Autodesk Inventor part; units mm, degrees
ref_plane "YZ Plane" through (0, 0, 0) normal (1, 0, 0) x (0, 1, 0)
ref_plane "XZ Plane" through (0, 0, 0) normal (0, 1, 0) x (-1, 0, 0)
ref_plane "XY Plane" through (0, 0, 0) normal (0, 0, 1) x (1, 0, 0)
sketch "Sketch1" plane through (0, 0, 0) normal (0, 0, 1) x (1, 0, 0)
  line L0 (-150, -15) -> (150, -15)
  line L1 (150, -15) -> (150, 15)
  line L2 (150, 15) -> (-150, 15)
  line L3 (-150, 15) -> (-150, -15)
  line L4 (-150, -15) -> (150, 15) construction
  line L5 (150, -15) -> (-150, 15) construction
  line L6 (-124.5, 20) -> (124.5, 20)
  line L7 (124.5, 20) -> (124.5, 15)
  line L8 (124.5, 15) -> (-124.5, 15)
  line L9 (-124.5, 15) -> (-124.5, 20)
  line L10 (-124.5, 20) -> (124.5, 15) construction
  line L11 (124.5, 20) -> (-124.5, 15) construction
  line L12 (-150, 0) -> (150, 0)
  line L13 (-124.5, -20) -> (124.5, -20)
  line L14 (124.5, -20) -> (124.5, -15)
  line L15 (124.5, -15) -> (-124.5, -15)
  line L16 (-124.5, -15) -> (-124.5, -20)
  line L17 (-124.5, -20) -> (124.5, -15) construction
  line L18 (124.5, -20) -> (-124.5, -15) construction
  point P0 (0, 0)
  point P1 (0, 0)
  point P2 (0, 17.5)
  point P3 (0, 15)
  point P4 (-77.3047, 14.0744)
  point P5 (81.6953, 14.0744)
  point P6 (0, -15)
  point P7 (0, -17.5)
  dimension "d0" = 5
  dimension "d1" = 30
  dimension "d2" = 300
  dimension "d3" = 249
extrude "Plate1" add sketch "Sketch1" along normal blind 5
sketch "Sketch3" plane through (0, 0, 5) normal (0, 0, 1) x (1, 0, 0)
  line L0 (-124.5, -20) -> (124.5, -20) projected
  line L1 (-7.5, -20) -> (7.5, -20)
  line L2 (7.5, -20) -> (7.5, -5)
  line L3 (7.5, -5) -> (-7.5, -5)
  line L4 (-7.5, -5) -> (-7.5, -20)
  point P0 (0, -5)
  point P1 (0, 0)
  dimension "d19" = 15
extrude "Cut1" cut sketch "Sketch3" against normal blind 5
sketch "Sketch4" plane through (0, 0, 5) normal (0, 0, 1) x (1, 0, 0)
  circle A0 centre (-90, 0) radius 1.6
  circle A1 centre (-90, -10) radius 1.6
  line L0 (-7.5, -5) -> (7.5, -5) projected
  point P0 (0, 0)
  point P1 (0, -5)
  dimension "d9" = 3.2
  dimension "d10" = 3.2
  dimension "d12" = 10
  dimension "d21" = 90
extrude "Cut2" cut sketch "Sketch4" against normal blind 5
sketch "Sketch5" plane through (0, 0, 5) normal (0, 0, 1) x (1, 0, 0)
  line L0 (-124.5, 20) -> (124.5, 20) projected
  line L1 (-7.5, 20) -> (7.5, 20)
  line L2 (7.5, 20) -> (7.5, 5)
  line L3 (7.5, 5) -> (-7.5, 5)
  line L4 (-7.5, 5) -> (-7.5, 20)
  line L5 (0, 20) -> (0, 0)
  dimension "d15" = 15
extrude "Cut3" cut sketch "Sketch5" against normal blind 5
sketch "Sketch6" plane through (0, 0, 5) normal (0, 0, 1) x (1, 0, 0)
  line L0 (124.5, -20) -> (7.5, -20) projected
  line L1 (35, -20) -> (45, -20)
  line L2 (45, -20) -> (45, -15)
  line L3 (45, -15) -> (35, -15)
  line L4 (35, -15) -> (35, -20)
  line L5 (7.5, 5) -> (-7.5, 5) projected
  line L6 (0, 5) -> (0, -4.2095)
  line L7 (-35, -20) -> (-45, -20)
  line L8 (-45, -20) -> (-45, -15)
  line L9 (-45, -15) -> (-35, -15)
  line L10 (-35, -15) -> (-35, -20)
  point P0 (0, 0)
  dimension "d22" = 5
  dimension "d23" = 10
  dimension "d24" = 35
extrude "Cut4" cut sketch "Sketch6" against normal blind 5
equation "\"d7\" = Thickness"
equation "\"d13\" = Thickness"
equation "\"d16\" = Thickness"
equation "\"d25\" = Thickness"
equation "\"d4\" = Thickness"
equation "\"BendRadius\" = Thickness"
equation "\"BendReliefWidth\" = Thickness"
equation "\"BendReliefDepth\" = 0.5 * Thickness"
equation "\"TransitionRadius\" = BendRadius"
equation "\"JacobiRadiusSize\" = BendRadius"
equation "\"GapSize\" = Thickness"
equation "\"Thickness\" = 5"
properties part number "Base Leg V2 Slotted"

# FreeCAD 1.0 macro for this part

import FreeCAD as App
import Part
import Sketcher
from FreeCAD import Vector
Q = App.Units.Quantity


def add_polygon(sketch, points):
    """Adds a closed chain of lines whose ends are joined by coincident constraints."""
    first, n = sketch.GeometryCount, len(points)
    for a, b in zip(points, points[1:] + points[:1]):
        sketch.addGeometry(Part.LineSegment(App.Vector(*a, 0), App.Vector(*b, 0)), False)
    for i in range(n):
        sketch.addConstraint(Sketcher.Constraint("Coincident", first + i, 2, first + (i + 1) % n, 1))

doc = App.newDocument("Part")
body = doc.addObject("PartDesign::Body", "Body")

# Sketch on XY plane
sketch1 = body.newObject("Sketcher::SketchObject", "Sketch")
sketch1.AttachmentSupport = (doc.getObject("XY_Plane"), [""])
sketch1.MapMode = "FlatFace"
add_polygon(sketch1, [(-150, -15), (-124, -15), (-124, -20), (124, -20), (124, -15), (150, -15), (150, 15), (124, 15), (124, 20), (-124, 20), (-124, 15), (-150, 15)])  # lines 0-11
sketch1.addConstraint(Sketcher.Constraint("Horizontal", 0))
sketch1.addConstraint(Sketcher.Constraint("Vertical", 1))
sketch1.addConstraint(Sketcher.Constraint("Horizontal", 2))
sketch1.addConstraint(Sketcher.Constraint("Vertical", 3))
sketch1.addConstraint(Sketcher.Constraint("Horizontal", 4))
sketch1.addConstraint(Sketcher.Constraint("Vertical", 5))
sketch1.addConstraint(Sketcher.Constraint("Horizontal", 6))
sketch1.addConstraint(Sketcher.Constraint("Vertical", 7))
sketch1.addConstraint(Sketcher.Constraint("Horizontal", 8))
sketch1.addConstraint(Sketcher.Constraint("Vertical", 9))
sketch1.addConstraint(Sketcher.Constraint("Horizontal", 10))
sketch1.addConstraint(Sketcher.Constraint("Vertical", 11))
sketch1.addConstraint(Sketcher.Constraint("Symmetric", 0, 2, 6, 2, -1, 1))
sketch1.addConstraint(Sketcher.Constraint("Symmetric", 2, 2, 8, 2, -1, 1))
sketch1.addConstraint(Sketcher.Constraint("Symmetric", 4, 2, 10, 2, -1, 1))
sketch1.addConstraint(Sketcher.Constraint("Symmetric", 0, 2, 3, 2, -2))
sketch1.addConstraint(Sketcher.Constraint("DistanceX", 2, 1, 2, 2, Q("249 mm")))
sketch1.addConstraint(Sketcher.Constraint("DistanceY", 1, 2, 1, 1, Q("5 mm")))
sketch1.addConstraint(Sketcher.Constraint("DistanceY", 5, 1, 5, 2, Q("30 mm")))
sketch1.addConstraint(Sketcher.Constraint("DistanceX", 0, 1, 0, 2, Q("25.5 mm")))
pad1 = body.newObject("PartDesign::Pad", "Pad")
pad1.Profile = sketch1
pad1.Length = 5

# Sketch on XY plane
sketch2 = body.newObject("Sketcher::SketchObject", "Sketch001")
sketch2.AttachmentSupport = (doc.getObject("XY_Plane"), [""])
sketch2.MapMode = "FlatFace"
sketch2.AttachmentOffset = App.Placement(Vector(0, 0, 5), App.Rotation())
add_polygon(sketch2, [(-8, -5), (-8, -20), (8, -20), (8, -5)])  # lines 0-3
sketch2.addConstraint(Sketcher.Constraint("Vertical", 0))
sketch2.addConstraint(Sketcher.Constraint("Horizontal", 1))
sketch2.addConstraint(Sketcher.Constraint("Vertical", 2))
sketch2.addConstraint(Sketcher.Constraint("Horizontal", 3))
sketch2.addConstraint(Sketcher.Constraint("Equal", 3, 0))
sketch2.addConstraint(Sketcher.Constraint("DistanceX", 1, 1, 1, 2, Q("15 mm")))
sketch2.addConstraint(Sketcher.Constraint("DistanceY", 0, 2, -1, 1, Q("20 mm")))
sketch2.addConstraint(Sketcher.Constraint("DistanceX", 0, 2, -1, 1, Q("7.5 mm")))
pocket1 = body.newObject("PartDesign::Pocket", "Pocket")
pocket1.Profile = sketch2
pocket1.Length = 5

# Sketch on XY plane
sketch3 = body.newObject("Sketcher::SketchObject", "Sketch002")
sketch3.AttachmentSupport = (doc.getObject("XY_Plane"), [""])
sketch3.MapMode = "FlatFace"
sketch3.AttachmentOffset = App.Placement(Vector(0, 0, 5), App.Rotation())
sketch3.addGeometry(Part.Circle(Vector(-90, 0, 0), Vector(0, 0, 1), 1.6), False)
sketch3.addGeometry(Part.Circle(Vector(-90, -10, 0), Vector(0, 0, 1), 1.6), False)
sketch3.addConstraint(Sketcher.Constraint("Equal", 0, 1))
sketch3.addConstraint(Sketcher.Constraint("PointOnObject", 0, 3, -1))
sketch3.addConstraint(Sketcher.Constraint("Vertical", 0, 3, 1, 3))
sketch3.addConstraint(Sketcher.Constraint("Diameter", 0, Q("3.2 mm")))
sketch3.addConstraint(Sketcher.Constraint("DistanceX", 0, 3, -1, 1, Q("90 mm")))
sketch3.addConstraint(Sketcher.Constraint("DistanceY", 1, 3, -1, 1, Q("10 mm")))
pocket2 = body.newObject("PartDesign::Pocket", "Pocket001")
pocket2.Profile = sketch3
pocket2.Length = 5

# Sketch on XY plane
sketch4 = body.newObject("Sketcher::SketchObject", "Sketch003")
sketch4.AttachmentSupport = (doc.getObject("XY_Plane"), [""])
sketch4.MapMode = "FlatFace"
sketch4.AttachmentOffset = App.Placement(Vector(0, 0, 5), App.Rotation())
add_polygon(sketch4, [(-8, 20), (-8, 5), (8, 5), (8, 20)])  # lines 0-3
sketch4.addConstraint(Sketcher.Constraint("Vertical", 0))
sketch4.addConstraint(Sketcher.Constraint("Horizontal", 1))
sketch4.addConstraint(Sketcher.Constraint("Vertical", 2))
sketch4.addConstraint(Sketcher.Constraint("Horizontal", 3))
sketch4.addConstraint(Sketcher.Constraint("Equal", 3, 0))
sketch4.addConstraint(Sketcher.Constraint("DistanceX", 1, 1, 1, 2, Q("15 mm")))
sketch4.addConstraint(Sketcher.Constraint("DistanceY", -1, 1, 0, 2, Q("5 mm")))
sketch4.addConstraint(Sketcher.Constraint("DistanceX", 0, 2, -1, 1, Q("7.5 mm")))
pocket3 = body.newObject("PartDesign::Pocket", "Pocket002")
pocket3.Profile = sketch4
pocket3.Length = 5

# Sketch on XY plane
sketch5 = body.newObject("Sketcher::SketchObject", "Sketch004")
sketch5.AttachmentSupport = (doc.getObject("XY_Plane"), [""])
sketch5.MapMode = "FlatFace"
sketch5.AttachmentOffset = App.Placement(Vector(0, 0, 5), App.Rotation())
add_polygon(sketch5, [(35, -20), (45, -20), (45, -15), (35, -15)])  # lines 0-3
add_polygon(sketch5, [(-45, -20), (-35, -20), (-35, -15), (-45, -15)])  # lines 4-7
sketch5.addConstraint(Sketcher.Constraint("Horizontal", 0))
sketch5.addConstraint(Sketcher.Constraint("Vertical", 1))
sketch5.addConstraint(Sketcher.Constraint("Horizontal", 2))
sketch5.addConstraint(Sketcher.Constraint("Vertical", 3))
sketch5.addConstraint(Sketcher.Constraint("Horizontal", 4))
sketch5.addConstraint(Sketcher.Constraint("Vertical", 5))
sketch5.addConstraint(Sketcher.Constraint("Horizontal", 6))
sketch5.addConstraint(Sketcher.Constraint("Vertical", 7))
sketch5.addConstraint(Sketcher.Constraint("Symmetric", 3, 2, 4, 2, -2))
sketch5.addConstraint(Sketcher.Constraint("Symmetric", 1, 2, 6, 2, -2))
sketch5.addConstraint(Sketcher.Constraint("DistanceX", 0, 1, 0, 2, Q("10 mm")))
sketch5.addConstraint(Sketcher.Constraint("DistanceY", 1, 1, 1, 2, Q("5 mm")))
sketch5.addConstraint(Sketcher.Constraint("DistanceX", -1, 1, 2, 2, Q("35 mm")))
sketch5.addConstraint(Sketcher.Constraint("DistanceY", 0, 2, -1, 1, Q("20 mm")))
pocket4 = body.newObject("PartDesign::Pocket", "Pocket003")
pocket4.Profile = sketch5
pocket4.Length = 5

doc.recompute()
